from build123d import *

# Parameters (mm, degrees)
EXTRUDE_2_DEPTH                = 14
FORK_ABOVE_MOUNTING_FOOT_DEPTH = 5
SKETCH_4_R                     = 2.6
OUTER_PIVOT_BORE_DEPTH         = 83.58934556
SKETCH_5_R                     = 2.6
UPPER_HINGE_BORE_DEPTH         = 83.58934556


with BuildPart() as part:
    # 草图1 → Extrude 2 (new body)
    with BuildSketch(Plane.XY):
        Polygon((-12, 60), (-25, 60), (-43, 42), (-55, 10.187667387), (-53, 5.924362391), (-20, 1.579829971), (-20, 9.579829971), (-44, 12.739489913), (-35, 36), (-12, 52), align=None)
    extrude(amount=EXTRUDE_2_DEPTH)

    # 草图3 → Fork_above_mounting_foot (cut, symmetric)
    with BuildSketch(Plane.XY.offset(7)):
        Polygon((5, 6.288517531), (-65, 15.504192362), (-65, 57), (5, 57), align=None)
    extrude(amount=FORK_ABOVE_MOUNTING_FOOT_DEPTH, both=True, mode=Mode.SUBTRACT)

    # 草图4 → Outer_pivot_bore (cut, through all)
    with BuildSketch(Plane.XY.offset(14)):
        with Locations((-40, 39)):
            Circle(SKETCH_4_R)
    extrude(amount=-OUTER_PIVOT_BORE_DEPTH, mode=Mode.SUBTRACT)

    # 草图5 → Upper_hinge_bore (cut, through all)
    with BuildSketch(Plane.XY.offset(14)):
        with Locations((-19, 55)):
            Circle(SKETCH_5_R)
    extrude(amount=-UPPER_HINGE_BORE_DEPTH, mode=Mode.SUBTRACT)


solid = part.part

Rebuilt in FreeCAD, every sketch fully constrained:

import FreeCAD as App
import Part
import Sketcher

V = App.Vector
Q = App.Units.Quantity


def add_polygon(sketch, points):
    """Adds a closed chain of lines whose ends are joined by coincident constraints."""
    first, n = sketch.GeometryCount, len(points)
    for a, b in zip(points, points[1:] + points[:1]):
        sketch.addGeometry(Part.LineSegment(App.Vector(*a, 0), App.Vector(*b, 0)), False)
    for i in range(n):
        sketch.addConstraint(Sketcher.Constraint("Coincident", first + i, 2, first + (i + 1) % n, 1))

doc = App.newDocument("Part")
body = doc.addObject("PartDesign::Body", "Body")

# Sketch on XY plane
sketch1 = body.newObject("Sketcher::SketchObject", "Sketch")
sketch1.AttachmentSupport = (doc.getObject("XY_Plane"), [""])
sketch1.MapMode = "FlatFace"
add_polygon(sketch1, [(-12, 60), (-25, 60), (-43, 42), (-55, 10.2), (-53, 5.9), (-20, 1.6), (-20, 9.6), (-44, 12.7), (-35, 36), (-12, 52)])  # lines 0-9
sketch1.addConstraint([
    Sketcher.Constraint("Horizontal", 0),
    Sketcher.Constraint("Vertical", 5),
    Sketcher.Constraint("Vertical", 9),
    Sketcher.Constraint("Parallel", 4, 6),
    Sketcher.Constraint("Equal", 5, 9),
    Sketcher.Constraint("DistanceX", 0, 2, 0, 1, 13.0),
    Sketcher.Constraint("DistanceY", 5, 1, 5, 2, 8.0),
    Sketcher.Constraint("Angle", 1, Q("-135 deg")),
    Sketcher.Constraint("DistanceX", 0, 2, -1, 1, 25.0),
    Sketcher.Constraint("DistanceY", -1, 1, 0, 2, 60.0),
    Sketcher.Constraint("DistanceX", 1, 2, -1, 1, 43.0),
    Sketcher.Constraint("DistanceX", 2, 2, -1, 1, 55.0),
    Sketcher.Constraint("DistanceX", 3, 2, -1, 1, 53.0),
    Sketcher.Constraint("DistanceX", 4, 2, -1, 1, 20.0),
    Sketcher.Constraint("DistanceX", 6, 2, -1, 1, 44.0),
    Sketcher.Constraint("DistanceX", 7, 2, -1, 1, 35.0),
    Sketcher.Constraint("DistanceY", -1, 1, 7, 2, 36.0),
    Sketcher.Constraint("Angle", 4, Q("-7.5 deg")),
    Sketcher.Constraint("Distance", 2, 34.00036),
    Sketcher.Constraint("DistanceY", -1, 1, 4, 2, 1.57983),
])
pad1 = body.newObject("PartDesign::Pad", "Pad")
pad1.Profile = sketch1
pad1.Length = 14

# Sketch on XY plane
sketch2 = body.newObject("Sketcher::SketchObject", "Sketch001")
sketch2.AttachmentSupport = (doc.getObject("XY_Plane"), [""])
sketch2.MapMode = "FlatFace"
sketch2.AttachmentOffset = App.Placement(V(0, 0, 7), App.Rotation())
add_polygon(sketch2, [(-65, 16), (5, 6), (5, 57), (-65, 57)])  # lines 0-3
sketch2.addConstraint([
    Sketcher.Constraint("Vertical", 1),
    Sketcher.Constraint("Horizontal", 2),
    Sketcher.Constraint("Vertical", 3),
    Sketcher.Constraint("DistanceX", 2, 2, 2, 1, 70.0),
    Sketcher.Constraint("DistanceX", -1, 1, 0, 2, 5.0),
    Sketcher.Constraint("DistanceY", -1, 1, 1, 2, 57.0),
    Sketcher.Constraint("Angle", 0, Q("-7.5 deg")),
    Sketcher.Constraint("DistanceY", 1, 1, 1, 2, 50.711482),
])
pocket1 = body.newObject("PartDesign::Pocket", "Pocket")
pocket1.Profile = sketch2
pocket1.Length = 10
pocket1.Midplane = True

# Sketch on XY plane
sketch3 = body.newObject("Sketcher::SketchObject", "Sketch002")
sketch3.AttachmentSupport = (doc.getObject("XY_Plane"), [""])
sketch3.MapMode = "FlatFace"
sketch3.AttachmentOffset = App.Placement(V(0, 0, 14), App.Rotation())
sketch3.addGeometry(Part.Circle(V(-40, 39, 0), V(0, 0, 1), 2.6), False)
sketch3.addConstraint([
    Sketcher.Constraint("Diameter", 0, 5.2),
    Sketcher.Constraint("DistanceX", 0, 3, -1, 1, 40.0),
    Sketcher.Constraint("DistanceY", -1, 1, 0, 3, 39.0),
])
pocket2 = body.newObject("PartDesign::Pocket", "Pocket001")
pocket2.Profile = sketch3
pocket2.Type = "ThroughAll"

# Sketch on XY plane
sketch4 = body.newObject("Sketcher::SketchObject", "Sketch003")
sketch4.AttachmentSupport = (doc.getObject("XY_Plane"), [""])
sketch4.MapMode = "FlatFace"
sketch4.AttachmentOffset = App.Placement(V(0, 0, 14), App.Rotation())
sketch4.addGeometry(Part.Circle(V(-19, 55, 0), V(0, 0, 1), 2.6), False)
sketch4.addConstraint([
    Sketcher.Constraint("Diameter", 0, 5.2),
    Sketcher.Constraint("DistanceX", 0, 3, -1, 1, 19.0),
    Sketcher.Constraint("DistanceY", -1, 1, 0, 3, 55.0),
])
pocket3 = body.newObject("PartDesign::Pocket", "Pocket002")
pocket3.Profile = sketch4
pocket3.Type = "ThroughAll"

doc.recompute()
